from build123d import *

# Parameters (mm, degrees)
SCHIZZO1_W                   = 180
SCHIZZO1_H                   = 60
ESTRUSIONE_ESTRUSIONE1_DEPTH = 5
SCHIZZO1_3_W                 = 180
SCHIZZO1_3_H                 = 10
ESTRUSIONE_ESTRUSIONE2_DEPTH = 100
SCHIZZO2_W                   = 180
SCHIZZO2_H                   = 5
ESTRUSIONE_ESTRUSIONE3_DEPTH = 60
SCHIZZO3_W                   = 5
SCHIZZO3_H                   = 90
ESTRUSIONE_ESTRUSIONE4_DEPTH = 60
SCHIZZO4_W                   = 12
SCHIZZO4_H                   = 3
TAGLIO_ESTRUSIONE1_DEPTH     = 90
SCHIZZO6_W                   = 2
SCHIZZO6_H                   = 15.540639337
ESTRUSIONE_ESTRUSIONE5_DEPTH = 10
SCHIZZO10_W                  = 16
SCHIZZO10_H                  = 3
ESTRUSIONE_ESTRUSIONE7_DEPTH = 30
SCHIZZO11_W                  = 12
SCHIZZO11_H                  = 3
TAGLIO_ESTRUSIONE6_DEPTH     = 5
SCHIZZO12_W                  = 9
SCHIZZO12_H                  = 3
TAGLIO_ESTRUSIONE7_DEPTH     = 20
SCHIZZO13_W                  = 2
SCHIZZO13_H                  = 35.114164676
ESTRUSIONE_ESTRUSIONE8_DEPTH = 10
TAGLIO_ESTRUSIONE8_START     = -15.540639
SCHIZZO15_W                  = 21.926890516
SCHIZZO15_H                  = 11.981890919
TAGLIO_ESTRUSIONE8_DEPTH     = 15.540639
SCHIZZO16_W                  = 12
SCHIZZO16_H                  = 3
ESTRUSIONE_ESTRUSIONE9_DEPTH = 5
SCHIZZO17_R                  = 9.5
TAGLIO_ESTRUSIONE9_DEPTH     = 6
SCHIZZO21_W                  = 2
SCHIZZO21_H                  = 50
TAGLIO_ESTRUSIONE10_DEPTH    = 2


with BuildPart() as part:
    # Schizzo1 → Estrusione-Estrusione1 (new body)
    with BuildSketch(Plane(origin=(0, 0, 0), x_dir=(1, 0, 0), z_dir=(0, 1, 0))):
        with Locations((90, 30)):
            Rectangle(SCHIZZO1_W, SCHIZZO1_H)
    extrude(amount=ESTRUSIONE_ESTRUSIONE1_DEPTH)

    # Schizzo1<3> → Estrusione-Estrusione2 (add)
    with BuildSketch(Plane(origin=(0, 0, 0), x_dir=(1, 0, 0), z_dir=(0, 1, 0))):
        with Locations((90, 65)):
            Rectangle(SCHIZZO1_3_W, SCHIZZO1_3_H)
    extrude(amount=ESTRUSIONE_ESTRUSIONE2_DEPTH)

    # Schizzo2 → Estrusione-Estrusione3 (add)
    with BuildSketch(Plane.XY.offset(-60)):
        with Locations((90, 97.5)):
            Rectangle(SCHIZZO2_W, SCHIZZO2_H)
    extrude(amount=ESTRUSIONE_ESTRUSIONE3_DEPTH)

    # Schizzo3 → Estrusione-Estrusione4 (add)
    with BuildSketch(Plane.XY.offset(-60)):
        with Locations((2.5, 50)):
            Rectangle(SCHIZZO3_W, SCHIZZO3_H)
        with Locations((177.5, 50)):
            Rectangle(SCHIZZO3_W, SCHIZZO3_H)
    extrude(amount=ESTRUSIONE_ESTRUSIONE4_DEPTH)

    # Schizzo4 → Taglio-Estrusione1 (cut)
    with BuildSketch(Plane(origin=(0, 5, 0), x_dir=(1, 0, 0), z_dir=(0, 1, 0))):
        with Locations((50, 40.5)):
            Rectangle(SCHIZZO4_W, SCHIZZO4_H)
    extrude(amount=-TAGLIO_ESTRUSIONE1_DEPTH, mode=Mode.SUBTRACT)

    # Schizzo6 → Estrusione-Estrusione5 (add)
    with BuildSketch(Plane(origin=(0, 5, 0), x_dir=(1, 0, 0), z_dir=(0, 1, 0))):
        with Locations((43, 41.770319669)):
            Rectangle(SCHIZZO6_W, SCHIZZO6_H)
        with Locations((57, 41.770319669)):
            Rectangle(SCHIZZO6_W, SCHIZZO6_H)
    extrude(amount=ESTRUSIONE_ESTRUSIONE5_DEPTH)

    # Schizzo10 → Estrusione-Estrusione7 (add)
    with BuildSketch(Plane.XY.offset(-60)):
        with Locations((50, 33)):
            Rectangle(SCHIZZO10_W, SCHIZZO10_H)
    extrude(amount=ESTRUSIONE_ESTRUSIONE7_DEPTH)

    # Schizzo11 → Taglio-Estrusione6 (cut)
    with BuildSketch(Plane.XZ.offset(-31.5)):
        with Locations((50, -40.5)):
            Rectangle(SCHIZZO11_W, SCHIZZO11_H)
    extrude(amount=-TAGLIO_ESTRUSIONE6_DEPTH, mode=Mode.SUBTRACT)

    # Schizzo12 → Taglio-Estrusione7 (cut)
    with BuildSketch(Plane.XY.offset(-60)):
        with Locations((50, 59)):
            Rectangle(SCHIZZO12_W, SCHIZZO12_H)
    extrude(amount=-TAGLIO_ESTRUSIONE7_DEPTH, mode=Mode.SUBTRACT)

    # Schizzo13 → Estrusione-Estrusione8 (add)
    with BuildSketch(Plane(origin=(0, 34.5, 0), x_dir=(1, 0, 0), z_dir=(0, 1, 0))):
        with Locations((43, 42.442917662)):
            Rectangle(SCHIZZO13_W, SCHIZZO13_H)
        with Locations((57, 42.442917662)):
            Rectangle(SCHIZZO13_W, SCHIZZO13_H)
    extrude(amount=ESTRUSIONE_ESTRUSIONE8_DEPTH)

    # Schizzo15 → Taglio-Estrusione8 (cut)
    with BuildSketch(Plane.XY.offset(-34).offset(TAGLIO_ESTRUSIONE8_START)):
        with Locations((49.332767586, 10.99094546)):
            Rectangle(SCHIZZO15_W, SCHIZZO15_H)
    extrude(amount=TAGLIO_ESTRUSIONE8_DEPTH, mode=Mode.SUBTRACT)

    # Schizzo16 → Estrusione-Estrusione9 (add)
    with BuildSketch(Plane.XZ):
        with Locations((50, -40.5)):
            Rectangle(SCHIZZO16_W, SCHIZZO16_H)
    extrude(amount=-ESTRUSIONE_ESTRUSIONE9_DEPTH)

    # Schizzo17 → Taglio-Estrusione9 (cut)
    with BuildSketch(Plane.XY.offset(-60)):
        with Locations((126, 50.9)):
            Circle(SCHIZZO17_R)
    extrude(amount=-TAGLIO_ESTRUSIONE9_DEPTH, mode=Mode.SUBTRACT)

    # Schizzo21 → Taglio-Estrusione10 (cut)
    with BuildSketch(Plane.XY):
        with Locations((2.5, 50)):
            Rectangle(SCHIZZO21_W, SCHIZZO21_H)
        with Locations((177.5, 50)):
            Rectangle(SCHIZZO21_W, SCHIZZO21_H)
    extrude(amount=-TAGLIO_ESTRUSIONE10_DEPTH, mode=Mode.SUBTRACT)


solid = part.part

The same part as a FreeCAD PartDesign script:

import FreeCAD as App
import Part
import Sketcher

V = App.Vector


def add_polygon(sketch, points):
    """Adds a closed chain of lines whose ends are joined by coincident constraints."""
    first, n = sketch.GeometryCount, len(points)
    for a, b in zip(points, points[1:] + points[:1]):
        sketch.addGeometry(Part.LineSegment(App.Vector(*a, 0), App.Vector(*b, 0)), False)
    for i in range(n):
        sketch.addConstraint(Sketcher.Constraint("Coincident", first + i, 2, first + (i + 1) % n, 1))

doc = App.newDocument("Part")
params = doc.addObject("Spreadsheet::Sheet", "Params")
for row, (alias, value) in enumerate([
    ("sketch1_width", "180 mm"),
    ("sketch1_height", "60 mm"),
    ("pad1_length", "5 mm"),
    ("sketch2_width", "180 mm"),
    ("sketch2_height", "10 mm"),
    ("pad2_length", "100 mm"),
    ("sketch3_width", "180 mm"),
    ("sketch3_height", "5 mm"),
    ("pad3_length", "60 mm"),
    ("sketch4_width", "5 mm"),
    ("sketch4_height", "90 mm"),
    ("pad4_length", "60 mm"),
    ("sketch5_width", "12 mm"),
    ("sketch5_height", "3 mm"),
    ("pocket1_length", "90 mm"),
    ("sketch6_width", "2 mm"),
    ("pad5_length", "10 mm"),
    ("sketch7_width", "16 mm"),
    ("sketch7_height", "3 mm"),
    ("pad6_length", "30 mm"),
    ("sketch8_width", "12 mm"),
    ("sketch8_height", "3 mm"),
    ("pocket2_length", "5 mm"),
    ("sketch9_width", "9 mm"),
    ("sketch9_height", "3 mm"),
    ("pocket3_length", "20 mm"),
    ("sketch10_width", "2 mm"),
    ("pad7_length", "10 mm"),
    ("pocket4_length", "15.540639 mm"),
    ("sketch12_width", "12 mm"),
    ("sketch12_height", "3 mm"),
    ("pad8_length", "5 mm"),
    ("sketch13_diameter", "19 mm"),
    ("pocket5_length", "6 mm"),
    ("sketch14_width", "2 mm"),
    ("sketch14_height", "50 mm"),
    ("pocket6_length", "2 mm"),
], start=1):
    params.set(f"A{row}", alias)
    params.set(f"B{row}", "=" + value)
    params.setAlias(f"B{row}", alias)

body = doc.addObject("PartDesign::Body", "Body")

# Sketch on XZ plane
sketch1 = body.newObject("Sketcher::SketchObject", "Sketch")
sketch1.AttachmentSupport = (doc.getObject("XZ_Plane"), [""])
sketch1.MapMode = "FlatFace"
add_polygon(sketch1, [(0, -60), (0, 0), (180, 0), (180, -60)])  # lines 0-3
sketch1.addConstraint(Sketcher.Constraint("Vertical", 0))
sketch1.addConstraint(Sketcher.Constraint("Horizontal", 1))
sketch1.addConstraint(Sketcher.Constraint("Vertical", 2))
sketch1.addConstraint(Sketcher.Constraint("Horizontal", 3))
sketch1.addConstraint(Sketcher.Constraint("Coincident", 0, 2, -1, 1))
sketch1.addConstraint(Sketcher.Constraint("DistanceX", 1, 1, 1, 2, 180.0))
sketch1.addConstraint(Sketcher.Constraint("DistanceY", 0, 1, 0, 2, 60.0))
sketch1.setExpression("Constraints[9]", "Params.sketch1_width")
sketch1.setExpression("Constraints[10]", "Params.sketch1_height")
pad1 = body.newObject("PartDesign::Pad", "Pad")
pad1.Profile = sketch1
pad1.setExpression("Length", "Params.pad1_length")
pad1.Reversed = True

# Sketch on XZ plane
sketch2 = body.newObject("Sketcher::SketchObject", "Sketch001")
sketch2.AttachmentSupport = (doc.getObject("XZ_Plane"), [""])
sketch2.MapMode = "FlatFace"
add_polygon(sketch2, [(0, -70), (0, -60), (180, -60), (180, -70)])  # lines 0-3
sketch2.addConstraint(Sketcher.Constraint("Vertical", 0))
sketch2.addConstraint(Sketcher.Constraint("Horizontal", 1))
sketch2.addConstraint(Sketcher.Constraint("Vertical", 2))
sketch2.addConstraint(Sketcher.Constraint("Horizontal", 3))
sketch2.addConstraint(Sketcher.Constraint("PointOnObject", 0, 2, -2))
sketch2.addConstraint(Sketcher.Constraint("DistanceX", 1, 1, 1, 2, 180.0))
sketch2.addConstraint(Sketcher.Constraint("DistanceY", 0, 1, 0, 2, 10.0))
sketch2.addConstraint(Sketcher.Constraint("DistanceY", 0, 2, -1, 1, 60.0))
sketch2.setExpression("Constraints[9]", "Params.sketch2_width")
sketch2.setExpression("Constraints[10]", "Params.sketch2_height")
pad2 = body.newObject("PartDesign::Pad", "Pad001")
pad2.Profile = sketch2
pad2.setExpression("Length", "Params.pad2_length")
pad2.Reversed = True

# Sketch on XY plane
sketch3 = body.newObject("Sketcher::SketchObject", "Sketch002")
sketch3.AttachmentSupport = (doc.getObject("XY_Plane"), [""])
sketch3.MapMode = "FlatFace"
sketch3.AttachmentOffset = App.Placement(V(0, 0, -60), App.Rotation())
add_polygon(sketch3, [(0, 100), (0, 95), (180, 95), (180, 100)])  # lines 0-3
sketch3.addConstraint(Sketcher.Constraint("Vertical", 0))
sketch3.addConstraint(Sketcher.Constraint("Horizontal", 1))
sketch3.addConstraint(Sketcher.Constraint("Vertical", 2))
sketch3.addConstraint(Sketcher.Constraint("Horizontal", 3))
sketch3.addConstraint(Sketcher.Constraint("PointOnObject", 0, 2, -2))
sketch3.addConstraint(Sketcher.Constraint("DistanceX", 1, 1, 1, 2, 180.0))
sketch3.addConstraint(Sketcher.Constraint("DistanceY", 0, 2, 0, 1, 5.0))
sketch3.addConstraint(Sketcher.Constraint("DistanceY", -1, 1, 0, 2, 95.0))
sketch3.setExpression("Constraints[9]", "Params.sketch3_width")
sketch3.setExpression("Constraints[10]", "Params.sketch3_height")
pad3 = body.newObject("PartDesign::Pad", "Pad002")
pad3.Profile = sketch3
pad3.setExpression("Length", "Params.pad3_length")

# Sketch on XY plane
sketch4 = body.newObject("Sketcher::SketchObject", "Sketch003")
sketch4.AttachmentSupport = (doc.getObject("XY_Plane"), [""])
sketch4.MapMode = "FlatFace"
sketch4.AttachmentOffset = App.Placement(V(0, 0, -60), App.Rotation())
add_polygon(sketch4, [(0, 95), (0, 5), (5, 5), (5, 95)])  # lines 0-3
add_polygon(sketch4, [(175, 95), (175, 5), (180, 5), (180, 95)])  # lines 4-7
sketch4.addConstraint(Sketcher.Constraint("Vertical", 0))
sketch4.addConstraint(Sketcher.Constraint("Horizontal", 1))
sketch4.addConstraint(Sketcher.Constraint("Vertical", 2))
sketch4.addConstraint(Sketcher.Constraint("Horizontal", 3))
sketch4.addConstraint(Sketcher.Constraint("Vertical", 4))
sketch4.addConstraint(Sketcher.Constraint("Horizontal", 5))
sketch4.addConstraint(Sketcher.Constraint("Vertical", 6))
sketch4.addConstraint(Sketcher.Constraint("Horizontal", 7))
sketch4.addConstraint(Sketcher.Constraint("PointOnObject", 0, 2, -2))
sketch4.addConstraint(Sketcher.Constraint("Horizontal", 1, 2, 4, 2))
sketch4.addConstraint(Sketcher.Constraint("Horizontal", 3, 2, 6, 2))
sketch4.addConstraint(Sketcher.Constraint("Equal", 3, 5))
sketch4.addConstraint(Sketcher.Constraint("DistanceX", 1, 1, 1, 2, 5.0))
sketch4.addConstraint(Sketcher.Constraint("DistanceY", 0, 2, 0, 1, 90.0))
sketch4.addConstraint(Sketcher.Constraint("DistanceY", -1, 1, 0, 2, 5.0))
sketch4.addConstraint(Sketcher.Constraint("DistanceX", -1, 1, 4, 2, 175.0))
sketch4.setExpression("Constraints[20]", "Params.sketch4_width")
sketch4.setExpression("Constraints[21]", "Params.sketch4_height")
pad4 = body.newObject("PartDesign::Pad", "Pad003")
pad4.Profile = sketch4
pad4.setExpression("Length", "Params.pad4_length")

# Sketch on XZ plane
sketch5 = body.newObject("Sketcher::SketchObject", "Sketch004")
sketch5.AttachmentSupport = (doc.getObject("XZ_Plane"), [""])
sketch5.MapMode = "FlatFace"
sketch5.AttachmentOffset = App.Placement(V(0, 0, -5), App.Rotation())
add_polygon(sketch5, [(44, -42), (44, -39), (56, -39), (56, -42)])  # lines 0-3
sketch5.addConstraint(Sketcher.Constraint("Vertical", 0))
sketch5.addConstraint(Sketcher.Constraint("Horizontal", 1))
sketch5.addConstraint(Sketcher.Constraint("Vertical", 2))
sketch5.addConstraint(Sketcher.Constraint("Horizontal", 3))
sketch5.addConstraint(Sketcher.Constraint("DistanceX", 1, 1, 1, 2, 12.0))
sketch5.addConstraint(Sketcher.Constraint("DistanceY", 0, 1, 0, 2, 3.0))
sketch5.addConstraint(Sketcher.Constraint("DistanceX", -1, 1, 0, 2, 44.0))
sketch5.addConstraint(Sketcher.Constraint("DistanceY", 0, 2, -1, 1, 39.0))
sketch5.setExpression("Constraints[8]", "Params.sketch5_width")
sketch5.setExpression("Constraints[9]", "Params.sketch5_height")
pocket1 = body.newObject("PartDesign::Pocket", "Pocket")
pocket1.Profile = sketch5
pocket1.setExpression("Length", "Params.pocket1_length")
pocket1.Reversed = True

# Sketch on XZ plane
sketch6 = body.newObject("Sketcher::SketchObject", "Sketch005")
sketch6.AttachmentSupport = (doc.getObject("XZ_Plane"), [""])
sketch6.MapMode = "FlatFace"
sketch6.AttachmentOffset = App.Placement(V(0, 0, -5), App.Rotation())
add_polygon(sketch6, [(42, -49.5), (42, -34), (44, -34), (44, -49.5)])  # lines 0-3
add_polygon(sketch6, [(56, -49.5), (56, -34), (58, -34), (58, -49.5)])  # lines 4-7
sketch6.addConstraint(Sketcher.Constraint("Vertical", 0))
sketch6.addConstraint(Sketcher.Constraint("Horizontal", 1))
sketch6.addConstraint(Sketcher.Constraint("Vertical", 2))
sketch6.addConstraint(Sketcher.Constraint("Horizontal", 3))
sketch6.addConstraint(Sketcher.Constraint("Vertical", 4))
sketch6.addConstraint(Sketcher.Constraint("Horizontal", 5))
sketch6.addConstraint(Sketcher.Constraint("Vertical", 6))
sketch6.addConstraint(Sketcher.Constraint("Horizontal", 7))
sketch6.addConstraint(Sketcher.Constraint("Horizontal", 1, 2, 4, 2))
sketch6.addConstraint(Sketcher.Constraint("Horizontal", 3, 2, 6, 2))
sketch6.addConstraint(Sketcher.Constraint("Equal", 3, 5))
sketch6.addConstraint(Sketcher.Constraint("DistanceX", 1, 1, 1, 2, 2.0))
sketch6.addConstraint(Sketcher.Constraint("DistanceX", -1, 1, 0, 2, 42.0))
sketch6.addConstraint(Sketcher.Constraint("DistanceY", 0, 2, -1, 1, 34.0))
sketch6.addConstraint(Sketcher.Constraint("DistanceX", -1, 1, 4, 2, 56.0))
sketch6.addConstraint(Sketcher.Constraint("DistanceY", 0, 1, 0, 2, 15.540639))
sketch6.setExpression("Constraints[19]", "Params.sketch6_width")
pad5 = body.newObject("PartDesign::Pad", "Pad004")
pad5.Profile = sketch6
pad5.setExpression("Length", "Params.pad5_length")
pad5.Reversed = True

# Sketch on XY plane
sketch7 = body.newObject("Sketcher::SketchObject", "Sketch006")
sketch7.AttachmentSupport = (doc.getObject("XY_Plane"), [""])
sketch7.MapMode = "FlatFace"
sketch7.AttachmentOffset = App.Placement(V(0, 0, -60), App.Rotation())
add_polygon(sketch7, [(42, 34.5), (42, 31.5), (58, 31.5), (58, 34.5)])  # lines 0-3
sketch7.addConstraint(Sketcher.Constraint("Vertical", 0))
sketch7.addConstraint(Sketcher.Constraint("Horizontal", 1))
sketch7.addConstraint(Sketcher.Constraint("Vertical", 2))
sketch7.addConstraint(Sketcher.Constraint("Horizontal", 3))
sketch7.addConstraint(Sketcher.Constraint("DistanceX", 1, 1, 1, 2, 16.0))
sketch7.addConstraint(Sketcher.Constraint("DistanceY", 0, 2, 0, 1, 3.0))
sketch7.addConstraint(Sketcher.Constraint("DistanceX", -1, 1, 0, 2, 42.0))
sketch7.addConstraint(Sketcher.Constraint("DistanceY", -1, 1, 0, 2, 31.5))
sketch7.setExpression("Constraints[8]", "Params.sketch7_width")
sketch7.setExpression("Constraints[9]", "Params.sketch7_height")
pad6 = body.newObject("PartDesign::Pad", "Pad005")
pad6.Profile = sketch7
pad6.setExpression("Length", "Params.pad6_length")

# Sketch on XZ plane
sketch8 = body.newObject("Sketcher::SketchObject", "Sketch007")
sketch8.AttachmentSupport = (doc.getObject("XZ_Plane"), [""])
sketch8.MapMode = "FlatFace"
sketch8.AttachmentOffset = App.Placement(V(0, 0, -31.5), App.Rotation())
add_polygon(sketch8, [(44, -39), (44, -42), (56, -42), (56, -39)])  # lines 0-3
sketch8.addConstraint(Sketcher.Constraint("Vertical", 0))
sketch8.addConstraint(Sketcher.Constraint("Horizontal", 1))
sketch8.addConstraint(Sketcher.Constraint("Vertical", 2))
sketch8.addConstraint(Sketcher.Constraint("Horizontal", 3))
sketch8.addConstraint(Sketcher.Constraint("DistanceX", 1, 1, 1, 2, 12.0))
sketch8.addConstraint(Sketcher.Constraint("DistanceY", 0, 2, 0, 1, 3.0))
sketch8.addConstraint(Sketcher.Constraint("DistanceX", -1, 1, 0, 2, 44.0))
sketch8.addConstraint(Sketcher.Constraint("DistanceY", 0, 2, -1, 1, 42.0))
sketch8.setExpression("Constraints[8]", "Params.sketch8_width")
sketch8.setExpression("Constraints[9]", "Params.sketch8_height")
pocket2 = body.newObject("PartDesign::Pocket", "Pocket001")
pocket2.Profile = sketch8
pocket2.setExpression("Length", "Params.pocket2_length")

# Sketch on XY plane
sketch9 = body.newObject("Sketcher::SketchObject", "Sketch008")
sketch9.AttachmentSupport = (doc.getObject("XY_Plane"), [""])
sketch9.MapMode = "FlatFace"
sketch9.AttachmentOffset = App.Placement(V(0, 0, -60), App.Rotation())
add_polygon(sketch9, [(45.5, 60.5), (45.5, 57.5), (54.5, 57.5), (54.5, 60.5)])  # lines 0-3
sketch9.addConstraint(Sketcher.Constraint("Vertical", 0))
sketch9.addConstraint(Sketcher.Constraint("Horizontal", 1))
sketch9.addConstraint(Sketcher.Constraint("Vertical", 2))
sketch9.addConstraint(Sketcher.Constraint("Horizontal", 3))
sketch9.addConstraint(Sketcher.Constraint("DistanceX", 1, 1, 1, 2, 9.0))
sketch9.addConstraint(Sketcher.Constraint("DistanceY", 0, 2, 0, 1, 3.0))
sketch9.addConstraint(Sketcher.Constraint("DistanceX", -1, 1, 0, 2, 45.5))
sketch9.addConstraint(Sketcher.Constraint("DistanceY", -1, 1, 0, 2, 57.5))
sketch9.setExpression("Constraints[8]", "Params.sketch9_width")
sketch9.setExpression("Constraints[9]", "Params.sketch9_height")
pocket3 = body.newObject("PartDesign::Pocket", "Pocket002")
pocket3.Profile = sketch9
pocket3.setExpression("Length", "Params.pocket3_length")

# Sketch on XZ plane
sketch10 = body.newObject("Sketcher::SketchObject", "Sketch009")
sketch10.AttachmentSupport = (doc.getObject("XZ_Plane"), [""])
sketch10.MapMode = "FlatFace"
sketch10.AttachmentOffset = App.Placement(V(0, 0, -34.5), App.Rotation())
add_polygon(sketch10, [(42, -60), (42, -24.9), (44, -24.9), (44, -60)])  # lines 0-3
add_polygon(sketch10, [(56, -60), (56, -24.9), (58, -24.9), (58, -60)])  # lines 4-7
sketch10.addConstraint(Sketcher.Constraint("Vertical", 0))
sketch10.addConstraint(Sketcher.Constraint("Horizontal", 1))
sketch10.addConstraint(Sketcher.Constraint("Vertical", 2))
sketch10.addConstraint(Sketcher.Constraint("Horizontal", 3))
sketch10.addConstraint(Sketcher.Constraint("Vertical", 4))
sketch10.addConstraint(Sketcher.Constraint("Horizontal", 5))
sketch10.addConstraint(Sketcher.Constraint("Vertical", 6))
sketch10.addConstraint(Sketcher.Constraint("Horizontal", 7))
sketch10.addConstraint(Sketcher.Constraint("Horizontal", 1, 2, 4, 2))
sketch10.addConstraint(Sketcher.Constraint("Horizontal", 3, 2, 6, 2))
sketch10.addConstraint(Sketcher.Constraint("Equal", 3, 5))
sketch10.addConstraint(Sketcher.Constraint("DistanceX", 1, 1, 1, 2, 2.0))
sketch10.addConstraint(Sketcher.Constraint("DistanceX", -1, 1, 0, 2, 42.0))
sketch10.addConstraint(Sketcher.Constraint("DistanceY", 2, 2, -1, 1, 60.0))
sketch10.addConstraint(Sketcher.Constraint("DistanceX", -1, 1, 4, 2, 56.0))
sketch10.addConstraint(Sketcher.Constraint("DistanceY", 0, 1, 0, 2, 35.114165))
sketch10.setExpression("Constraints[19]", "Params.sketch10_width")
pad7 = body.newObject("PartDesign::Pad", "Pad006")
pad7.Profile = sketch10
pad7.setExpression("Length", "Params.pad7_length")
pad7.Reversed = True

# Sketch on XY plane
sketch11 = body.newObject("Sketcher::SketchObject", "Sketch010")
sketch11.AttachmentSupport = (doc.getObject("XY_Plane"), [""])
sketch11.MapMode = "FlatFace"
sketch11.AttachmentOffset = App.Placement(V(0, 0, -49.540639), App.Rotation())
add_polygon(sketch11, [(38, 17), (38, 5), (60, 5), (60, 17)])  # lines 0-3
sketch11.addConstraint(Sketcher.Constraint("Vertical", 0))
sketch11.addConstraint(Sketcher.Constraint("Horizontal", 1))
sketch11.addConstraint(Sketcher.Constraint("Vertical", 2))
sketch11.addConstraint(Sketcher.Constraint("Horizontal", 3))
sketch11.addConstraint(Sketcher.Constraint("DistanceY", -1, 1, 0, 2, 5.0))
sketch11.addConstraint(Sketcher.Constraint("DistanceX", 1, 1, 1, 2, 21.926891))
sketch11.addConstraint(Sketcher.Constraint("DistanceY", 0, 2, 0, 1, 11.981891))
sketch11.addConstraint(Sketcher.Constraint("DistanceX", -1, 1, 0, 2, 38.369322))
pocket4 = body.newObject("PartDesign::Pocket", "Pocket003")
pocket4.Profile = sketch11
pocket4.setExpression("Length", "Params.pocket4_length")
pocket4.Reversed = True

# Sketch on XZ plane
sketch12 = body.newObject("Sketcher::SketchObject", "Sketch011")
sketch12.AttachmentSupport = (doc.getObject("XZ_Plane"), [""])
sketch12.MapMode = "FlatFace"
add_polygon(sketch12, [(44, -39), (44, -42), (56, -42), (56, -39)])  # lines 0-3
sketch12.addConstraint(Sketcher.Constraint("Vertical", 0))
sketch12.addConstraint(Sketcher.Constraint("Horizontal", 1))
sketch12.addConstraint(Sketcher.Constraint("Vertical", 2))
sketch12.addConstraint(Sketcher.Constraint("Horizontal", 3))
sketch12.addConstraint(Sketcher.Constraint("DistanceX", 1, 1, 1, 2, 12.0))
sketch12.addConstraint(Sketcher.Constraint("DistanceY", 0, 2, 0, 1, 3.0))
sketch12.addConstraint(Sketcher.Constraint("DistanceX", -1, 1, 0, 2, 44.0))
sketch12.addConstraint(Sketcher.Constraint("DistanceY", 0, 2, -1, 1, 42.0))
sketch12.setExpression("Constraints[8]", "Params.sketch12_width")
sketch12.setExpression("Constraints[9]", "Params.sketch12_height")
pad8 = body.newObject("PartDesign::Pad", "Pad007")
pad8.Profile = sketch12
pad8.setExpression("Length", "Params.pad8_length")
pad8.Reversed = True

# Sketch on XY plane
sketch13 = body.newObject("Sketcher::SketchObject", "Sketch012")
sketch13.AttachmentSupport = (doc.getObject("XY_Plane"), [""])
sketch13.MapMode = "FlatFace"
sketch13.AttachmentOffset = App.Placement(V(0, 0, -60), App.Rotation())
sketch13.addGeometry(Part.Circle(V(126, 51, 0), V(0, 0, 1), 10), False)
sketch13.addConstraint(Sketcher.Constraint("Diameter", 0, 19.0))
sketch13.addConstraint(Sketcher.Constraint("DistanceX", -1, 1, 0, 3, 126.0))
sketch13.addConstraint(Sketcher.Constraint("DistanceY", -1, 1, 0, 3, 50.9))
sketch13.setExpression("Constraints[0]", "Params.sketch13_diameter")
pocket5 = body.newObject("PartDesign::Pocket", "Pocket004")
pocket5.Profile = sketch13
pocket5.setExpression("Length", "Params.pocket5_length")

# Sketch on XY plane
sketch14 = body.newObject("Sketcher::SketchObject", "Sketch013")
sketch14.AttachmentSupport = (doc.getObject("XY_Plane"), [""])
sketch14.MapMode = "FlatFace"
add_polygon(sketch14, [(1.5, 75), (1.5, 25), (3.5, 25), (3.5, 75)])  # lines 0-3
add_polygon(sketch14, [(176.5, 75), (176.5, 25), (178.5, 25), (178.5, 75)])  # lines 4-7
sketch14.addConstraint(Sketcher.Constraint("Vertical", 0))
sketch14.addConstraint(Sketcher.Constraint("Horizontal", 1))
sketch14.addConstraint(Sketcher.Constraint("Vertical", 2))
sketch14.addConstraint(Sketcher.Constraint("Horizontal", 3))
sketch14.addConstraint(Sketcher.Constraint("Vertical", 4))
sketch14.addConstraint(Sketcher.Constraint("Horizontal", 5))
sketch14.addConstraint(Sketcher.Constraint("Vertical", 6))
sketch14.addConstraint(Sketcher.Constraint("Horizontal", 7))
sketch14.addConstraint(Sketcher.Constraint("Horizontal", 1, 2, 4, 2))
sketch14.addConstraint(Sketcher.Constraint("Horizontal", 3, 2, 6, 2))
sketch14.addConstraint(Sketcher.Constraint("Equal", 3, 5))
sketch14.addConstraint(Sketcher.Constraint("DistanceX", 1, 1, 1, 2, 2.0))
sketch14.addConstraint(Sketcher.Constraint("DistanceY", 0, 2, 0, 1, 50.0))
sketch14.addConstraint(Sketcher.Constraint("DistanceY", -1, 1, 0, 2, 25.0))
sketch14.addConstraint(Sketcher.Constraint("DistanceX", 1, 2, 4, 2, 173.0))
sketch14.addConstraint(Sketcher.Constraint("DistanceX", -1, 1, 0, 2, 1.5))
sketch14.setExpression("Constraints[19]", "Params.sketch14_width")
sketch14.setExpression("Constraints[20]", "Params.sketch14_height")
pocket6 = body.newObject("PartDesign::Pocket", "Pocket005")
pocket6.Profile = sketch14
pocket6.setExpression("Length", "Params.pocket6_length")

doc.recompute()
